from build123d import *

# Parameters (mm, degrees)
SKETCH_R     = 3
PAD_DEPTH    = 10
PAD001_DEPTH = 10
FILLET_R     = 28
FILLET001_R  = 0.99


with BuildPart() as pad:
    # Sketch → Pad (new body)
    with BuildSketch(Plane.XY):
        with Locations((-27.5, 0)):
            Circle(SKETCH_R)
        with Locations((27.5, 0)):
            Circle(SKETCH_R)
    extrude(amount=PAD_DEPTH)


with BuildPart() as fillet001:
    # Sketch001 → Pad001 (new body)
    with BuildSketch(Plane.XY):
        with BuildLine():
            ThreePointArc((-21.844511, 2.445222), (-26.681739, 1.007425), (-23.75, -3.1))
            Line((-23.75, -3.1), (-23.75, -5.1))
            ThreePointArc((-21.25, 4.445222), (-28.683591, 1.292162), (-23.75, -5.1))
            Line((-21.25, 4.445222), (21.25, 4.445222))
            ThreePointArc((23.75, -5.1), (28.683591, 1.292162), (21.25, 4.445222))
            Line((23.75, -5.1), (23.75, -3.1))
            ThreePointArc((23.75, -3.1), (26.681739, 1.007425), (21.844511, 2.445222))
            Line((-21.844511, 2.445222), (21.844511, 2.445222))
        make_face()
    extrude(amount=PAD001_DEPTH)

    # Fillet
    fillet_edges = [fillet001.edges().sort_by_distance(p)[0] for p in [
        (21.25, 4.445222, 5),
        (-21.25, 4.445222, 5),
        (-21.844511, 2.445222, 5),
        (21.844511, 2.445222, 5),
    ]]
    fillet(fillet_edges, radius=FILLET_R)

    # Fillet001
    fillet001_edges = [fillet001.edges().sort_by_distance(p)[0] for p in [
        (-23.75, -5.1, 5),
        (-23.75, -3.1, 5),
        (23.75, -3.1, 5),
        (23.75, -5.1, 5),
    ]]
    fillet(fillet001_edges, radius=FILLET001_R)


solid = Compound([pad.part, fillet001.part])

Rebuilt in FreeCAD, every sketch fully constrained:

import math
import FreeCAD as App
import Part
import Sketcher
from FreeCAD import Vector
Q = App.Units.Quantity


def edges_at(feature, points):
    """Names of the edges that pass closest to the given points."""
    edges = feature.Shape.Edges
    near = lambda p: min(range(len(edges)), key=lambda i: edges[i].distToShape(Part.Vertex(*p))[0])
    return sorted({f"Edge{near(p) + 1}" for p in points})

doc = App.newDocument("Part")
body = doc.addObject("PartDesign::Body", "Body")
body.AllowCompound = True

sketch1 = body.newObject("Sketcher::SketchObject", "Sketch")
sketch1.AttachmentSupport = (doc.getObject("XY_Plane"), [""])
sketch1.MapMode = "FlatFace"
sketch1.addGeometry([
    Part.Circle(Vector(-27.5, 0, 0), Vector(0, 0, 1), 3),
    Part.Circle(Vector(27.5, 0, 0), Vector(0, 0, 1), 3),
], False)
sketch1.addConstraint([
    Sketcher.Constraint("Equal", 0, 1),
    Sketcher.Constraint("Symmetric", 0, 3, 1, 3, -1, 1),
    Sketcher.Constraint("PointOnObject", 0, 3, -1),
    Sketcher.Constraint("Diameter", 0, Q("6 mm")),
    Sketcher.Constraint("DistanceX", 0, 3, 1, 3, Q("55 mm")),
])
pad1 = body.newObject("PartDesign::Pad", "Pad")
pad1.Profile = sketch1
pad1.Length = 10
body2 = doc.addObject("PartDesign::Body", "Body001")

sketch2 = body2.newObject("Sketcher::SketchObject", "Sketch001")
sketch2.AttachmentSupport = (doc.getObject("XY_Plane001"), [""])
sketch2.MapMode = "FlatFace"
sketch2.addGeometry([
    Part.ArcOfCircle(Part.Circle(Vector(-23.7, 0, 0), Vector(0, 0, 1), 3.1), math.radians(52), math.radians(270)),
    Part.LineSegment(Vector(-21.8, 2.4, 0), Vector(21.8, 2.4, 0)),
    Part.ArcOfCircle(Part.Circle(Vector(23.7, 0, 0), Vector(0, 0, 1), 3.1), math.radians(-90), math.radians(128)),
    Part.LineSegment(Vector(23.8, -3.1, 0), Vector(23.8, -5.1, 0)),
    Part.ArcOfCircle(Part.Circle(Vector(23.8, 0, 0), Vector(0, 0, 1), 5.1), math.radians(-90), math.radians(119)),
    Part.LineSegment(Vector(21.2, 4.4, 0), Vector(-21.2, 4.4, 0)),
    Part.ArcOfCircle(Part.Circle(Vector(-23.8, 0, 0), Vector(0, 0, 1), 5.1), math.radians(61), math.radians(270)),
    Part.LineSegment(Vector(-23.8, -5.1, 0), Vector(-23.8, -3.1, 0)),
], False)
sketch2.addConstraint([
    Sketcher.Constraint("Coincident", 0, 1, 1, 1),
    Sketcher.Constraint("Coincident", 1, 2, 2, 2),
    Sketcher.Constraint("Coincident", 2, 1, 3, 1),
    Sketcher.Constraint("Coincident", 3, 2, 4, 1),
    Sketcher.Constraint("Coincident", 4, 2, 5, 1),
    Sketcher.Constraint("Coincident", 5, 2, 6, 1),
    Sketcher.Constraint("Coincident", 6, 2, 7, 1),
    Sketcher.Constraint("Coincident", 7, 2, 0, 2),
    Sketcher.Constraint("Horizontal", 1),
    Sketcher.Constraint("Vertical", 3),
    Sketcher.Constraint("Horizontal", 5),
    Sketcher.Constraint("Vertical", 7),
    Sketcher.Constraint("Coincident", 4, 3, 2, 3),
    Sketcher.Constraint("Coincident", 6, 3, 0, 3),
    Sketcher.Constraint("Equal", 0, 2),
    Sketcher.Constraint("Equal", 4, 6),
    Sketcher.Constraint("Symmetric", 0, 3, 2, 3, -1, 1),
    Sketcher.Constraint("Symmetric", 3, 2, 6, 2, -2),
    Sketcher.Constraint("Vertical", 4, 3, 2, 1),
    Sketcher.Constraint("Radius", 0, Q("3.1 mm")),
    Sketcher.Constraint("Radius", 4, Q("5.1 mm")),
    Sketcher.Constraint("DistanceX", 5, 2, 5, 1, Q("42.5 mm")),
    Sketcher.Constraint("DistanceY", 1, 2, 4, 2, Q("2 mm")),
    Sketcher.Constraint("DistanceX", 6, 2, 4, 2, Q("45 mm")),
])
pad2 = body2.newObject("PartDesign::Pad", "Pad001")
pad2.Profile = sketch2
pad2.Length = 10
doc.recompute()

fillet = body2.newObject("PartDesign::Fillet", "Fillet")
fillet.Base = (pad2, edges_at(pad2, [
    (21.25, 4.445, 5),
    (-21.25, 4.445, 5),
    (-21.845, 2.445, 5),
    (21.845, 2.445, 5),
]))
fillet.Radius = 28
doc.recompute()

fillet2 = body2.newObject("PartDesign::Fillet", "Fillet001")
fillet2.Base = (fillet, edges_at(fillet, [
    (-23.75, -5.1, 5),
    (-23.75, -3.1, 5),
    (23.75, -3.1, 5),
    (23.75, -5.1, 5),
]))
fillet2.Radius = 0.99

doc.recompute()
